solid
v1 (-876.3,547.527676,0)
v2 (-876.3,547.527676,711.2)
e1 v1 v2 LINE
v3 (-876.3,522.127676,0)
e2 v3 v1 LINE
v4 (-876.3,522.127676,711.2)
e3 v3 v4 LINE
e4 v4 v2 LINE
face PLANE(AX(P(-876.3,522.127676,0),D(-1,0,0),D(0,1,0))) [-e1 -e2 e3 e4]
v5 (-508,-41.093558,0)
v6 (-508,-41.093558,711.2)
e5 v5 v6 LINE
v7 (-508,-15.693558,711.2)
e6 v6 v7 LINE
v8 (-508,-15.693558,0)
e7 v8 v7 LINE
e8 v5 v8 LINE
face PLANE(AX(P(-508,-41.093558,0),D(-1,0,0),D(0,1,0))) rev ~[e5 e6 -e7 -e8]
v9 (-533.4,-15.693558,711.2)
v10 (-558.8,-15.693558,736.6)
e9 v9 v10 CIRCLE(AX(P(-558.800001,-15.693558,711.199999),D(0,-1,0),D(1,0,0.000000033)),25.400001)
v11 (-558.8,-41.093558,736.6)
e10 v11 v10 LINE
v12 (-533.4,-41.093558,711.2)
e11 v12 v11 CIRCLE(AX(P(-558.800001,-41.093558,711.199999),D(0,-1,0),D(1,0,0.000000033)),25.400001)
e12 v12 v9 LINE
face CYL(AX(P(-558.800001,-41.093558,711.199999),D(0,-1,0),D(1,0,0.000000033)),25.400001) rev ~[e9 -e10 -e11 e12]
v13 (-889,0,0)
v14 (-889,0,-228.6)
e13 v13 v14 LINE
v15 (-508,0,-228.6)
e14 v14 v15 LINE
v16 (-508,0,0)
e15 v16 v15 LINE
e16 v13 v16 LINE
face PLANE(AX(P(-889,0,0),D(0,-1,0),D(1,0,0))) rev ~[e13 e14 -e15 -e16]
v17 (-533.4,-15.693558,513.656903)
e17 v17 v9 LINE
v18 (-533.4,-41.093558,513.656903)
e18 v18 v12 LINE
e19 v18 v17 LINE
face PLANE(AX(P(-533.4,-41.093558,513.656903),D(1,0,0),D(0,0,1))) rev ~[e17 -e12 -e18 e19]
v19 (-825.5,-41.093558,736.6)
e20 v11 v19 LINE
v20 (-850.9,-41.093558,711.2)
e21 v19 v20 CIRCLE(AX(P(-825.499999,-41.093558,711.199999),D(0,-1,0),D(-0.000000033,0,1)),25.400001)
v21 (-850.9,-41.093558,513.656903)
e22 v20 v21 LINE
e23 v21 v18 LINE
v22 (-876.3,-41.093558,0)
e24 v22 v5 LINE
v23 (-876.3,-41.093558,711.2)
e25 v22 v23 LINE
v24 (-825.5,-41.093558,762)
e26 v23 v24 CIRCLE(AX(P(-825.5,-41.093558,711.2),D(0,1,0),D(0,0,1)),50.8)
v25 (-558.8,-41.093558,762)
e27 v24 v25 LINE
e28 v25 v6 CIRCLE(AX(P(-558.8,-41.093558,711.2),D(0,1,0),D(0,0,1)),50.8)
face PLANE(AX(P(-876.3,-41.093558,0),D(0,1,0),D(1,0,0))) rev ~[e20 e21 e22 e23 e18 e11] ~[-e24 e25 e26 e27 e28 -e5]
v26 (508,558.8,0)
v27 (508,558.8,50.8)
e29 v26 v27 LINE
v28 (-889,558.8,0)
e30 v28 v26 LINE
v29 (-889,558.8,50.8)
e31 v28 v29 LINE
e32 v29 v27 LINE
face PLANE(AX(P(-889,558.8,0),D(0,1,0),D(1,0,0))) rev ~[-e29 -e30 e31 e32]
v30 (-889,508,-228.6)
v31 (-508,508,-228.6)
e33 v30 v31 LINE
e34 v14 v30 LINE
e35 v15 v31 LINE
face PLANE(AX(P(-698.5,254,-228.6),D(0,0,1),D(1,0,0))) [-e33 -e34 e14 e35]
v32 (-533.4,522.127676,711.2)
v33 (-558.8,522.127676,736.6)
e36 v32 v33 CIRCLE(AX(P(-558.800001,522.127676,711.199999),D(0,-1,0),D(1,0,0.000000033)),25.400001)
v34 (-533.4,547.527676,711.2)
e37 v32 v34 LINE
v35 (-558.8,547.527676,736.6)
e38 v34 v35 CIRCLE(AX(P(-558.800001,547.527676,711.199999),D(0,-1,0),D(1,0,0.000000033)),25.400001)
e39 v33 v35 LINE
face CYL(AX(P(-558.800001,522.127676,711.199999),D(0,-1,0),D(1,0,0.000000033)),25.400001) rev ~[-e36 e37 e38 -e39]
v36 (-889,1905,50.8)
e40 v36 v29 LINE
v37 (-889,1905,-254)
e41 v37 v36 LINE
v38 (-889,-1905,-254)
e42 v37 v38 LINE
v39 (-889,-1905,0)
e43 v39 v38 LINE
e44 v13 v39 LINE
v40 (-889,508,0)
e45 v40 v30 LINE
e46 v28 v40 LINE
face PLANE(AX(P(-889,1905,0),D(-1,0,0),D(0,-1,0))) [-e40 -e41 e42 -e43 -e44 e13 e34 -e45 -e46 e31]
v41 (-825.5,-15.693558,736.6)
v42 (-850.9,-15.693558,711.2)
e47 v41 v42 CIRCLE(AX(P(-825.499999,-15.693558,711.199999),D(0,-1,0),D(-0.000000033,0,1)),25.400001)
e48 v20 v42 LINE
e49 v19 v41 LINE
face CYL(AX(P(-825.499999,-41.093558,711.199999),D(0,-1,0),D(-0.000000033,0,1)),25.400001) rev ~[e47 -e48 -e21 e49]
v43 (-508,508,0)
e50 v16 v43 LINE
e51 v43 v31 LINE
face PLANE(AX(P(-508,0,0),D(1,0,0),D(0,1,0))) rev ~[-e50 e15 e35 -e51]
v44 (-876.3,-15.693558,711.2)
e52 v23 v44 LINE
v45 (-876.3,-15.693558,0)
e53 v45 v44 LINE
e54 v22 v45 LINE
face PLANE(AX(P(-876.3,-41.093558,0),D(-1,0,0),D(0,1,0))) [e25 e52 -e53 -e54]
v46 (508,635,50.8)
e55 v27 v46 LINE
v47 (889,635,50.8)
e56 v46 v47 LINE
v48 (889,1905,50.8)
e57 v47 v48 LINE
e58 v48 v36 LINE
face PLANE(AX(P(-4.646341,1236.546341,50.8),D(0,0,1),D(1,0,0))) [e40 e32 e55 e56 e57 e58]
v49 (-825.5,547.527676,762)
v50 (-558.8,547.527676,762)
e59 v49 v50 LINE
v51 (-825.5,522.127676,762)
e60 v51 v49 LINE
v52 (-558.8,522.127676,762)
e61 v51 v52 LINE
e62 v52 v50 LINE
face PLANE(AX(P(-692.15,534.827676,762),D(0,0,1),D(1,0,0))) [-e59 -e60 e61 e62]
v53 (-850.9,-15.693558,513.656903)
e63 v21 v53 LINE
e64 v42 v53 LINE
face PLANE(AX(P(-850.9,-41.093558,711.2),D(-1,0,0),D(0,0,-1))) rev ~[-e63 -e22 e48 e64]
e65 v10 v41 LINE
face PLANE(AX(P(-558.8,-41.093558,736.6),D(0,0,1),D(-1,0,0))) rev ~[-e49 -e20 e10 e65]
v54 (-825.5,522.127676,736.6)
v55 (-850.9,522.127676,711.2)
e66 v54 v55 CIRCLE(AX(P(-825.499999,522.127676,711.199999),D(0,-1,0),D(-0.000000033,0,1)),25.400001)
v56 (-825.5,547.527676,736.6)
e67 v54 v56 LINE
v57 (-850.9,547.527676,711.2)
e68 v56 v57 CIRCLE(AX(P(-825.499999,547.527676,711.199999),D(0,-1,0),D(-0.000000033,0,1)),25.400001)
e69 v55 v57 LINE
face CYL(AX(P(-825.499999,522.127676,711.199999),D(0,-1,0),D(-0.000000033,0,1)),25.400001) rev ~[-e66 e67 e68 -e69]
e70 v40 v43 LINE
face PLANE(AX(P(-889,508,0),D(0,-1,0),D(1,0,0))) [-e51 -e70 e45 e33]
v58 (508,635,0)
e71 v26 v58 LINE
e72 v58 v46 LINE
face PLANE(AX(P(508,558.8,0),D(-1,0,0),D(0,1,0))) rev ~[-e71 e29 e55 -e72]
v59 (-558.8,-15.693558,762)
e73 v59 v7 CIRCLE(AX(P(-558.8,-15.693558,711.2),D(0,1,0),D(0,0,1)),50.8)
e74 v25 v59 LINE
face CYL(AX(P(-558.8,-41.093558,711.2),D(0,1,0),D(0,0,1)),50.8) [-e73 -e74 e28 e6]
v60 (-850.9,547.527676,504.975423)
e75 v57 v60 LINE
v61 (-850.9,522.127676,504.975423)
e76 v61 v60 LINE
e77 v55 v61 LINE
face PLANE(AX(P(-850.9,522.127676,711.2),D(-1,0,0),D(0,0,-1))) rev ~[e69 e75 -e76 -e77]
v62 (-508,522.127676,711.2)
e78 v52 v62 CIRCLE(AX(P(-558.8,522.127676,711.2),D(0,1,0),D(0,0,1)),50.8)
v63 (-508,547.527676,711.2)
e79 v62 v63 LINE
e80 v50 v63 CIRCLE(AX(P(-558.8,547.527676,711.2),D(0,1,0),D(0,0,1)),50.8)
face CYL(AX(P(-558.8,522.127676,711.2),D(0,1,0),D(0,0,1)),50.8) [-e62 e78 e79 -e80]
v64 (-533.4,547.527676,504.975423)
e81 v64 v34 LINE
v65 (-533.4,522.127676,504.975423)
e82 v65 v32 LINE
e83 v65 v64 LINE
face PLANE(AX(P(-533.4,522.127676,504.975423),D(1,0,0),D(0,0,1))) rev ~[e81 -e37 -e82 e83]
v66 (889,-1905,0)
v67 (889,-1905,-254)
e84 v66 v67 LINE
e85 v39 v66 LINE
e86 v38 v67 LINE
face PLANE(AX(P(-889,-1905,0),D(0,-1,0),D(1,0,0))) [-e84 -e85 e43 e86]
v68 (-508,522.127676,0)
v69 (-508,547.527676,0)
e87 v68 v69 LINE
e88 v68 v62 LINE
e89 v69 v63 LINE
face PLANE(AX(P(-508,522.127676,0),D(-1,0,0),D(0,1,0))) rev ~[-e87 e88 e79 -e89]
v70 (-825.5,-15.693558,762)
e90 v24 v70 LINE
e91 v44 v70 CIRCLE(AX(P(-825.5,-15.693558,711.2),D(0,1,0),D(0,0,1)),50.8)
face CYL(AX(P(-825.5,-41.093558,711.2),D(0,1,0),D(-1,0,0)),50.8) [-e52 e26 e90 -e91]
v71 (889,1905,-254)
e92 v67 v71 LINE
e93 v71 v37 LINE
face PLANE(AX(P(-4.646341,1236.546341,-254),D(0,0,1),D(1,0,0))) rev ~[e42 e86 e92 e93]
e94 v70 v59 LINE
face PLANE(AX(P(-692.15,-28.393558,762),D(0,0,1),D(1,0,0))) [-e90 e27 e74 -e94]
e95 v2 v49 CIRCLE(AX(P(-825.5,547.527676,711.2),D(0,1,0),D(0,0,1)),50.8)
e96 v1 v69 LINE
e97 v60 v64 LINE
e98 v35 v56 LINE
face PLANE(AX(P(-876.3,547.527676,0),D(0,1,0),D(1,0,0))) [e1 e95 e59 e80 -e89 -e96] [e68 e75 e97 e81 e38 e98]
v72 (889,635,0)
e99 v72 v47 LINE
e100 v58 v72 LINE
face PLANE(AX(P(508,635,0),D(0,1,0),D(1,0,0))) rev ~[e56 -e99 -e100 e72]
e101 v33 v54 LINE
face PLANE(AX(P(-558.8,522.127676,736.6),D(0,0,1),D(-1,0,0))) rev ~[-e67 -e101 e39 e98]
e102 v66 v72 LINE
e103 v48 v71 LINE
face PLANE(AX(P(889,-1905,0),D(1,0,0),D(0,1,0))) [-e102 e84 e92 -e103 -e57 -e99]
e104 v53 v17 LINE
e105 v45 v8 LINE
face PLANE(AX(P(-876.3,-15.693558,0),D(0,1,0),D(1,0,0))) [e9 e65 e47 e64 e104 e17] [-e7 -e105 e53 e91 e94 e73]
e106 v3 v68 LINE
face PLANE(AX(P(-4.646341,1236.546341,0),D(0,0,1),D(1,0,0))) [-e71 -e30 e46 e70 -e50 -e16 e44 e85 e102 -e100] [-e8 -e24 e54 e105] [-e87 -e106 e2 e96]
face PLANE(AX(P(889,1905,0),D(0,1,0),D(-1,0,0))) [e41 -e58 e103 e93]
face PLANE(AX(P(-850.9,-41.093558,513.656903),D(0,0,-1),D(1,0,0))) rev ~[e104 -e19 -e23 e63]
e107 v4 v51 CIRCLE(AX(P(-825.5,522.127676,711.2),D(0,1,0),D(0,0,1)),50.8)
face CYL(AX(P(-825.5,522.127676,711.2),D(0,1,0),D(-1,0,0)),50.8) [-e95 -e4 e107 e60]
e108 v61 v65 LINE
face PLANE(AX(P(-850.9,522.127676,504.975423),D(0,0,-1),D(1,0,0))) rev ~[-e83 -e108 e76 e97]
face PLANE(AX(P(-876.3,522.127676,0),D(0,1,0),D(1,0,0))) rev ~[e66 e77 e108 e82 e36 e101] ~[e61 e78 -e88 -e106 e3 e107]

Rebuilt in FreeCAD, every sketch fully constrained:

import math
import FreeCAD as App
import Part
import Sketcher

V = App.Vector
Q = App.Units.Quantity


def edges_at(feature, points):
    """Names of the edges that pass closest to the given points."""
    edges = feature.Shape.Edges
    near = lambda p: min(range(len(edges)), key=lambda i: edges[i].distToShape(Part.Vertex(*p))[0])
    return sorted({f"Edge{near(p) + 1}" for p in points})

doc = App.newDocument("Part")
body = doc.addObject("PartDesign::Body", "Body")

# Sketch on XY plane
sketch1 = body.newObject("Sketcher::SketchObject", "Sketch")
sketch1.AttachmentSupport = (doc.getObject("XY_Plane"), [""])
sketch1.MapMode = "FlatFace"
sketch1.addGeometry([
    Part.LineSegment(V(889, 1905, 0), V(-889, 1905, 0)),  # 0
    Part.LineSegment(V(-889, 1905, 0), V(-889, 559, 0)),  # 1
    Part.LineSegment(V(-889, 559, 0), V(508, 559, 0)),  # 2
    Part.LineSegment(V(508, 559, 0), V(508, 635, 0)),  # 3
    Part.LineSegment(V(508, 635, 0), V(889, 635, 0)),  # 4
    Part.LineSegment(V(889, 635, 0), V(889, 1905, 0)),  # 5
], False)
sketch1.addConstraint([
    Sketcher.Constraint("Coincident", 0, 2, 1, 1),
    Sketcher.Constraint("Coincident", 1, 2, 2, 1),
    Sketcher.Constraint("Coincident", 2, 2, 3, 1),
    Sketcher.Constraint("Coincident", 3, 2, 4, 1),
    Sketcher.Constraint("Coincident", 4, 2, 5, 1),
    Sketcher.Constraint("Coincident", 5, 2, 0, 1),
    Sketcher.Constraint("Horizontal", 0),
    Sketcher.Constraint("Vertical", 1),
    Sketcher.Constraint("Horizontal", 2),
    Sketcher.Constraint("Vertical", 3),
    Sketcher.Constraint("Horizontal", 4),
    Sketcher.Constraint("Vertical", 5),
    Sketcher.Constraint("DistanceX", 0, 2, 0, 1, Q("70 in")),
    Sketcher.Constraint("DistanceX", 2, 1, 2, 2, Q("55 in")),
    Sketcher.Constraint("DistanceY", 1, 2, 1, 1, Q("53 in")),
    Sketcher.Constraint("DistanceY", 3, 1, 3, 2, Q("3 in")),
    Sketcher.Constraint("DistanceX", 0, 2, -1, 1, Q("35 in")),
    Sketcher.Constraint("DistanceY", -1, 1, 0, 2, Q("75 in")),
])
pad1 = body.newObject("PartDesign::Pad", "Pad")
pad1.Profile = sketch1
pad1.Length = Q("2 in")

# Sketch on XY plane
sketch2 = body.newObject("Sketcher::SketchObject", "Sketch001")
sketch2.AttachmentSupport = (doc.getObject("XY_Plane"), [""])
sketch2.MapMode = "FlatFace"
sketch2.addGeometry([
    Part.LineSegment(V(889, 1905, 0), V(-889, 1905, 0)),
    Part.LineSegment(V(-889, 1905, 0), V(-889, -1905, 0)),
    Part.LineSegment(V(-889, -1905, 0), V(889, -1905, 0)),
    Part.LineSegment(V(889, -1905, 0), V(889, 1905, 0)),
], False)
sketch2.addConstraint([
    Sketcher.Constraint("Coincident", 0, 2, 1, 1),
    Sketcher.Constraint("Coincident", 1, 2, 2, 1),
    Sketcher.Constraint("Coincident", 2, 2, 3, 1),
    Sketcher.Constraint("Coincident", 3, 2, 0, 1),
    Sketcher.Constraint("Horizontal", 0),
    Sketcher.Constraint("Vertical", 1),
    Sketcher.Constraint("Horizontal", 2),
    Sketcher.Constraint("Vertical", 3),
    Sketcher.Constraint("Symmetric", 0, 2, 2, 2, -1, 1),
    Sketcher.Constraint("DistanceX", 0, 2, 0, 1, Q("70 in")),
    Sketcher.Constraint("DistanceY", 1, 2, 1, 1, Q("150 in")),
])
pad2 = body.newObject("PartDesign::Pad", "Pad001")
pad2.Profile = sketch2
pad2.Length = Q("10 in")
pad2.Reversed = True

# Sketch on XY plane
sketch3 = body.newObject("Sketcher::SketchObject", "Sketch002")
sketch3.AttachmentSupport = (doc.getObject("XY_Plane"), [""])
sketch3.MapMode = "FlatFace"
sketch3.addGeometry([
    Part.LineSegment(V(-889, 508, 0), V(-889, 0, 0)),
    Part.LineSegment(V(-889, 0, 0), V(-508, 0, 0)),
    Part.LineSegment(V(-508, 0, 0), V(-508, 508, 0)),
    Part.LineSegment(V(-508, 508, 0), V(-889, 508, 0)),
], False)
sketch3.addConstraint([
    Sketcher.Constraint("Coincident", 0, 2, 1, 1),
    Sketcher.Constraint("Coincident", 1, 2, 2, 1),
    Sketcher.Constraint("Coincident", 2, 2, 3, 1),
    Sketcher.Constraint("Coincident", 3, 2, 0, 1),
    Sketcher.Constraint("Vertical", 0),
    Sketcher.Constraint("Horizontal", 1),
    Sketcher.Constraint("Vertical", 2),
    Sketcher.Constraint("Horizontal", 3),
    Sketcher.Constraint("PointOnObject", 0, 2, -1),
    Sketcher.Constraint("DistanceX", 1, 1, 1, 2, Q("15 in")),
    Sketcher.Constraint("DistanceY", 0, 2, 0, 1, Q("20 in")),
    Sketcher.Constraint("DistanceX", 0, 2, -1, 1, Q("35 in")),
])
pocket1 = body.newObject("PartDesign::Pocket", "Pocket")
pocket1.Profile = sketch3
pocket1.Length = Q("9 in")

# Sketch on XY plane
sketch4 = body.newObject("Sketcher::SketchObject", "Sketch003")
sketch4.AttachmentSupport = (doc.getObject("XY_Plane"), [""])
sketch4.MapMode = "FlatFace"
sketch4.addGeometry([
    Part.LineSegment(V(-876, 548, 0), V(-876, 522, 0)),
    Part.LineSegment(V(-876, 522, 0), V(-508, 522, 0)),
    Part.LineSegment(V(-508, 522, 0), V(-508, 548, 0)),
    Part.LineSegment(V(-508, 548, 0), V(-876, 548, 0)),
], False)
sketch4.addConstraint([
    Sketcher.Constraint("Coincident", 0, 2, 1, 1),
    Sketcher.Constraint("Coincident", 1, 2, 2, 1),
    Sketcher.Constraint("Coincident", 2, 2, 3, 1),
    Sketcher.Constraint("Coincident", 3, 2, 0, 1),
    Sketcher.Constraint("Vertical", 0),
    Sketcher.Constraint("Horizontal", 1),
    Sketcher.Constraint("Vertical", 2),
    Sketcher.Constraint("Horizontal", 3),
    Sketcher.Constraint("DistanceY", 0, 2, 0, 1, Q("1 in")),
    Sketcher.Constraint("DistanceX", 1, 1, 1, 2, Q("14.5 in")),
    Sketcher.Constraint("DistanceX", 1, 2, -1, 1, Q("20 in")),
    Sketcher.Constraint("DistanceY", -1, 1, 0, 2, 522.127676),
])
pad3 = body.newObject("PartDesign::Pad", "Pad002")
pad3.Profile = sketch4
pad3.Length = Q("30 in")
doc.recompute()

fillet = body.newObject("PartDesign::Fillet", "Fillet")
fillet.Base = (pad3, edges_at(pad3, [(-876.3, 534.828, 762)]))
fillet.Radius = Q("2 in")
doc.recompute()

fillet2 = body.newObject("PartDesign::Fillet", "Fillet001")
fillet2.Base = (fillet, edges_at(fillet, [(-508, 534.828, 762)]))
fillet2.Radius = Q("2 in")

# Sketch on XZ plane
sketch5 = body.newObject("Sketcher::SketchObject", "Sketch004")
sketch5.AttachmentSupport = (doc.getObject("XZ_Plane"), [""])
sketch5.MapMode = "FlatFace"
sketch5.AttachmentOffset = App.Placement(V(0, 0, -522.127676), App.Rotation())
sketch5.addGeometry([
    Part.LineSegment(V(-851, 711, 0), V(-851, 505, 0)),  # 0
    Part.LineSegment(V(-851, 505, 0), V(-533, 505, 0)),  # 1
    Part.LineSegment(V(-533, 505, 0), V(-533, 711, 0)),  # 2
    Part.ArcOfCircle(Part.Circle(V(-559, 711, 0), V(0, 0, 1), 25), math.radians(0), math.radians(90)),  # 3
    Part.LineSegment(V(-559, 737, 0), V(-826, 737, 0)),  # 4
    Part.ArcOfCircle(Part.Circle(V(-825, 711, 0), V(0, 0, 1), 25), math.radians(90), math.radians(180)),  # 5
], False)
sketch5.addConstraint([
    Sketcher.Constraint("Coincident", 0, 2, 1, 1),
    Sketcher.Constraint("Coincident", 1, 2, 2, 1),
    Sketcher.Constraint("Tangent", 2, 2, 3, 1),
    Sketcher.Constraint("Tangent", 3, 2, 4, 1),
    Sketcher.Constraint("Tangent", 4, 2, 5, 1),
    Sketcher.Constraint("Tangent", 5, 2, 0, 1),
    Sketcher.Constraint("Vertical", 0),
    Sketcher.Constraint("Horizontal", 1),
    Sketcher.Constraint("Vertical", 2),
    Sketcher.Constraint("Horizontal", 4),
    Sketcher.Constraint("Equal", 3, 5),
    Sketcher.Constraint("Radius", 3, Q("1 in")),
    Sketcher.Constraint("DistanceX", 1, 1, 1, 2, Q("12.5 in")),
    Sketcher.Constraint("DistanceX", 3, 3, -1, 1, Q("22 in")),
    Sketcher.Constraint("DistanceY", -1, 1, 3, 3, Q("28 in")),
    Sketcher.Constraint("DistanceY", 0, 2, 0, 1, 206.224577),
])
pocket2 = body.newObject("PartDesign::Pocket", "Pocket001")
pocket2.Profile = sketch5
pocket2.Length = Q("1 in")

# Sketch on XY plane
sketch6 = body.newObject("Sketcher::SketchObject", "Sketch005")
sketch6.AttachmentSupport = (doc.getObject("XY_Plane"), [""])
sketch6.MapMode = "FlatFace"
sketch6.addGeometry([
    Part.LineSegment(V(-876, -16, 0), V(-876, -41, 0)),
    Part.LineSegment(V(-876, -41, 0), V(-508, -41, 0)),
    Part.LineSegment(V(-508, -41, 0), V(-508, -16, 0)),
    Part.LineSegment(V(-508, -16, 0), V(-876, -16, 0)),
], False)
sketch6.addConstraint([
    Sketcher.Constraint("Coincident", 0, 2, 1, 1),
    Sketcher.Constraint("Coincident", 1, 2, 2, 1),
    Sketcher.Constraint("Coincident", 2, 2, 3, 1),
    Sketcher.Constraint("Coincident", 3, 2, 0, 1),
    Sketcher.Constraint("Vertical", 0),
    Sketcher.Constraint("Horizontal", 1),
    Sketcher.Constraint("Vertical", 2),
    Sketcher.Constraint("Horizontal", 3),
    Sketcher.Constraint("DistanceY", 0, 2, 0, 1, Q("1 in")),
    Sketcher.Constraint("DistanceX", 1, 1, 1, 2, Q("14.5 in")),
    Sketcher.Constraint("DistanceX", 1, 2, -1, 1, Q("20 in")),
    Sketcher.Constraint("DistanceY", 0, 2, -1, 1, 41.093558),
])
pad4 = body.newObject("PartDesign::Pad", "Pad003")
pad4.Profile = sketch6
pad4.Length = Q("30 in")
doc.recompute()

fillet3 = body.newObject("PartDesign::Fillet", "Fillet002")
fillet3.Base = (pad4, edges_at(pad4, [(-876.3, -28.394, 762)]))
fillet3.Radius = Q("2 in")
doc.recompute()

fillet4 = body.newObject("PartDesign::Fillet", "Fillet003")
fillet4.Base = (fillet3, edges_at(fillet3, [(-508, -28.394, 762)]))
fillet4.Radius = Q("2 in")

# Sketch on XZ plane
sketch7 = body.newObject("Sketcher::SketchObject", "Sketch006")
sketch7.AttachmentSupport = (doc.getObject("XZ_Plane"), [""])
sketch7.MapMode = "FlatFace"
sketch7.AttachmentOffset = App.Placement(V(0, 0, 41.093558), App.Rotation())
sketch7.addGeometry([
    Part.LineSegment(V(-851, 711, 0), V(-851, 514, 0)),  # 0
    Part.LineSegment(V(-851, 514, 0), V(-533, 514, 0)),  # 1
    Part.LineSegment(V(-533, 514, 0), V(-533, 711, 0)),  # 2
    Part.ArcOfCircle(Part.Circle(V(-559, 711, 0), V(0, 0, 1), 25), math.radians(0), math.radians(90)),  # 3
    Part.LineSegment(V(-559, 737, 0), V(-826, 737, 0)),  # 4
    Part.ArcOfCircle(Part.Circle(V(-825, 711, 0), V(0, 0, 1), 25), math.radians(90), math.radians(180)),  # 5
], False)
sketch7.addConstraint([
    Sketcher.Constraint("Coincident", 0, 2, 1, 1),
    Sketcher.Constraint("Coincident", 1, 2, 2, 1),
    Sketcher.Constraint("Tangent", 2, 2, 3, 1),
    Sketcher.Constraint("Tangent", 3, 2, 4, 1),
    Sketcher.Constraint("Tangent", 4, 2, 5, 1),
    Sketcher.Constraint("Tangent", 5, 2, 0, 1),
    Sketcher.Constraint("Vertical", 0),
    Sketcher.Constraint("Horizontal", 1),
    Sketcher.Constraint("Vertical", 2),
    Sketcher.Constraint("Horizontal", 4),
    Sketcher.Constraint("Equal", 3, 5),
    Sketcher.Constraint("Radius", 3, Q("1 in")),
    Sketcher.Constraint("DistanceX", 1, 1, 1, 2, Q("12.5 in")),
    Sketcher.Constraint("DistanceX", 3, 3, -1, 1, Q("22 in")),
    Sketcher.Constraint("DistanceY", -1, 1, 3, 3, Q("28 in")),
    Sketcher.Constraint("DistanceY", 0, 2, 0, 1, 197.543097),
])
pocket3 = body.newObject("PartDesign::Pocket", "Pocket002")
pocket3.Profile = sketch7
pocket3.Length = Q("1 in")

doc.recompute()
